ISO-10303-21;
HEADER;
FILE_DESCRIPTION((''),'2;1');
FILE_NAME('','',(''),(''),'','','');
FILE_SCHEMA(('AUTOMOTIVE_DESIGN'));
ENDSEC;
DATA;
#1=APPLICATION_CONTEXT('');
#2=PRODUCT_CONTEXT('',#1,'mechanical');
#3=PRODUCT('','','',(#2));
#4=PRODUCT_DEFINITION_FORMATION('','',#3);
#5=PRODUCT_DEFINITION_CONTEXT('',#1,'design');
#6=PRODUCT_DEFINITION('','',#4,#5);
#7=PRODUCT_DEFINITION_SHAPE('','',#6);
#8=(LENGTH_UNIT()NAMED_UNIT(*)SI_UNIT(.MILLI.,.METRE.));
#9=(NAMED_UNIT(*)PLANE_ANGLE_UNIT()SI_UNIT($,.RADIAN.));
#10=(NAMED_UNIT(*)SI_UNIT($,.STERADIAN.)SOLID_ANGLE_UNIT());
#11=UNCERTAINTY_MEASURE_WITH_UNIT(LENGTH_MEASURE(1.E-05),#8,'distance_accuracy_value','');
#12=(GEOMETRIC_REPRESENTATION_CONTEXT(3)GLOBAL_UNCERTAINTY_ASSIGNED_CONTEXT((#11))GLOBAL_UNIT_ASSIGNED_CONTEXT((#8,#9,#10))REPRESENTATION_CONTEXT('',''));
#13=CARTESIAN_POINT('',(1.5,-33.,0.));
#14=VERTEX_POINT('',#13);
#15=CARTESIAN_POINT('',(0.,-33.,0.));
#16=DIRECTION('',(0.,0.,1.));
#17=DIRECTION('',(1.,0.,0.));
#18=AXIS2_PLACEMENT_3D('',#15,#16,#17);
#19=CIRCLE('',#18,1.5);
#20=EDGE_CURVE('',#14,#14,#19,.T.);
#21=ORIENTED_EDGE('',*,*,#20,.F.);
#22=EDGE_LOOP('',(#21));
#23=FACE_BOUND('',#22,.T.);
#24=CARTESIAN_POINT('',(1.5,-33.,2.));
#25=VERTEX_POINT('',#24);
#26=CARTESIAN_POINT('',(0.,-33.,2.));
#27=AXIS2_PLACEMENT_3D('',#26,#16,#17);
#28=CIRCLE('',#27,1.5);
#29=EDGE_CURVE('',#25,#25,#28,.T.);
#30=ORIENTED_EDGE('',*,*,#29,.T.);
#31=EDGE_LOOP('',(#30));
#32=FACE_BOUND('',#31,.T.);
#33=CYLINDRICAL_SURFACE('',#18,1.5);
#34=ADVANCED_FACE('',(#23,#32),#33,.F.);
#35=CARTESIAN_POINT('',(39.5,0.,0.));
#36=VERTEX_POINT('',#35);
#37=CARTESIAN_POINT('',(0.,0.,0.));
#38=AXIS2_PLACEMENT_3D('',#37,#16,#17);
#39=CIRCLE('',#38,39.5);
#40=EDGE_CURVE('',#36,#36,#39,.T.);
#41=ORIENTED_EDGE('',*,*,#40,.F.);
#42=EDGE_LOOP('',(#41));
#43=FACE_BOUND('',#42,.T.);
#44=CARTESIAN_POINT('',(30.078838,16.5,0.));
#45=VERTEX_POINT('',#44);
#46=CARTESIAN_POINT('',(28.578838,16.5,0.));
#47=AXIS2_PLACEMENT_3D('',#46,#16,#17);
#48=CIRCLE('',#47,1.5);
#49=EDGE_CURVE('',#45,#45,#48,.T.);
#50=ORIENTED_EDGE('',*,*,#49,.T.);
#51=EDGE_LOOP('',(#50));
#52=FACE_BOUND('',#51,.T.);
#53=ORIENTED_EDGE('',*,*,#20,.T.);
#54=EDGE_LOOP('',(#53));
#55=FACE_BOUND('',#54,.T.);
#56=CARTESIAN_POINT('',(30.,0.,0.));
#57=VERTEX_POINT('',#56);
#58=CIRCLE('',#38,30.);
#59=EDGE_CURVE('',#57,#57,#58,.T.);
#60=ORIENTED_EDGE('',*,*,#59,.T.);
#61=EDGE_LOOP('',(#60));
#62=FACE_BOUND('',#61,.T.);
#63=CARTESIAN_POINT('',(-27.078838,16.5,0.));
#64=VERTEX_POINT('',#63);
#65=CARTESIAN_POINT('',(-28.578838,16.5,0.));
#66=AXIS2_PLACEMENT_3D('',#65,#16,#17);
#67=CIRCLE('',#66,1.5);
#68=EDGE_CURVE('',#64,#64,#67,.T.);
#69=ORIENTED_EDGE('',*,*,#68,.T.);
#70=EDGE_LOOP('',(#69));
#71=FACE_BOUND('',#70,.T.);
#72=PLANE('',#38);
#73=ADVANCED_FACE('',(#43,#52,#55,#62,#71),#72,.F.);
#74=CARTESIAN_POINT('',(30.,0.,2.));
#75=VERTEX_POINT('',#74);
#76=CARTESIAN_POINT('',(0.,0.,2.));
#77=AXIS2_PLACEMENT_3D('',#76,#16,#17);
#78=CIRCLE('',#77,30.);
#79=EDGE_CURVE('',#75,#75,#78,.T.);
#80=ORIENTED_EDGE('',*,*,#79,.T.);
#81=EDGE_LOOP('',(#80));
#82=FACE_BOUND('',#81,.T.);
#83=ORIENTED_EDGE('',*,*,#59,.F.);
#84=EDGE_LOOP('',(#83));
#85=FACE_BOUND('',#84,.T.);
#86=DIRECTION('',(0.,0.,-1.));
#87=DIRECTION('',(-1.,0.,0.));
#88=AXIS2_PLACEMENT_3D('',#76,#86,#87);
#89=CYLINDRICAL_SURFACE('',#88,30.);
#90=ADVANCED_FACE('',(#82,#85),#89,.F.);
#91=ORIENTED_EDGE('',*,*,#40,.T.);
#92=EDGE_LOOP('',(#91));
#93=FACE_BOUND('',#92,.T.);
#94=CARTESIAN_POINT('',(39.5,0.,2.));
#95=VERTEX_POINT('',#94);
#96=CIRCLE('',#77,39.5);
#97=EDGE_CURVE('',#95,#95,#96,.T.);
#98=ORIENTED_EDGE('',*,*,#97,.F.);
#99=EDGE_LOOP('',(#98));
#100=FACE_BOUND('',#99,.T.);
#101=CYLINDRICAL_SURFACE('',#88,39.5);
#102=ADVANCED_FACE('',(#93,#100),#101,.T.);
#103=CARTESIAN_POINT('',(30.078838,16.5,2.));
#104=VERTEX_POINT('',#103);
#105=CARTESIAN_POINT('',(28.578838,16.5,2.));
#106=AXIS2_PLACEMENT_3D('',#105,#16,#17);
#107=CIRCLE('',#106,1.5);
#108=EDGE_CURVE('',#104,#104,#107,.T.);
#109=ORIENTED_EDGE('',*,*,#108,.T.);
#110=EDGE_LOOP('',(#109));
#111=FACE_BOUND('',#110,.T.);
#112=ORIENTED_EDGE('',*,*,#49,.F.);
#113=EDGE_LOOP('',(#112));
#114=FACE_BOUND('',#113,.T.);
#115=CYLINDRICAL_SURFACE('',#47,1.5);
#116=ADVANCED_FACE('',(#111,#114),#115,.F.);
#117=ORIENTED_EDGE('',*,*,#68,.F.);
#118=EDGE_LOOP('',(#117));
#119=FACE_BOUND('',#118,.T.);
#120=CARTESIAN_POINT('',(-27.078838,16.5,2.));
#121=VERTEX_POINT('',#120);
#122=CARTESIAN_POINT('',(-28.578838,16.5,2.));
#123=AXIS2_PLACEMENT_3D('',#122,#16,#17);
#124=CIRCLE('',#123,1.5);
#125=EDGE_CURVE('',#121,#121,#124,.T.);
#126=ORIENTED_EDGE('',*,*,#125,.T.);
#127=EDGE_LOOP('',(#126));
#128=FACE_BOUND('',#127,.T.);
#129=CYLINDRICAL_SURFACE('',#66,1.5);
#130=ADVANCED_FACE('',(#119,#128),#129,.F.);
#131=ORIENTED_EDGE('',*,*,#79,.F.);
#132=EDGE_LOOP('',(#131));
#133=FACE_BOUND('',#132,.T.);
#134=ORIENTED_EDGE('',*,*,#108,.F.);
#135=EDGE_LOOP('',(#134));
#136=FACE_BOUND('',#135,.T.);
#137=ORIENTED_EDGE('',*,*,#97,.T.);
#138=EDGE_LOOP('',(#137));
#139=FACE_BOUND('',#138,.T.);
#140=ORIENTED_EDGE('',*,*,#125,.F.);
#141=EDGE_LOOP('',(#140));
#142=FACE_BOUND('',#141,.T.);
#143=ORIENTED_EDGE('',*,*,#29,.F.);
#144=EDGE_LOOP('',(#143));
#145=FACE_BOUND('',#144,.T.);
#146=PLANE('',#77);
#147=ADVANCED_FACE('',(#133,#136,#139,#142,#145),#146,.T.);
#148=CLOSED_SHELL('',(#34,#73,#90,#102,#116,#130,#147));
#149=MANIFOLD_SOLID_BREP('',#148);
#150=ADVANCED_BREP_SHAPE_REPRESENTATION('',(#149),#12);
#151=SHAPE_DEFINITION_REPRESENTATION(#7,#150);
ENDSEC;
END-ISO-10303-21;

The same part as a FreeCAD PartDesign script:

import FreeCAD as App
import Part
import Sketcher
from FreeCAD import Vector

doc = App.newDocument("Part")
params = doc.addObject("Spreadsheet::Sheet", "Params")
for row, (alias, value) in enumerate([
    ("sketch1_diameter", "79 mm"),
    ("sketch1_diameter2", "60 mm"),
    ("pad1_length", "2 mm"),
    ("sketch2_diameter", "3 mm"),
    ("pocket1_length", "2 mm"),
], start=1):
    params.set(f"A{row}", alias)
    params.set(f"B{row}", "=" + value)
    params.setAlias(f"B{row}", alias)

body = doc.addObject("PartDesign::Body", "Body")

# Sketch on XY plane
sketch1 = doc.addObject("Sketcher::SketchObject", "Sketch")
body.addObject(sketch1)
sketch1.AttachmentSupport = (doc.XY_Plane, [""])
sketch1.MapMode = "FlatFace"
sketch1.addGeometry(Part.Circle(Vector(0, 0, 0), Vector(0, 0, 1), 40), False)
sketch1.addGeometry(Part.Circle(Vector(0, 0, 0), Vector(0, 0, 1), 30), False)
sketch1.addConstraint(Sketcher.Constraint("Coincident", 0, 3, -1, 1))
sketch1.addConstraint(Sketcher.Constraint("Coincident", 1, 3, -1, 1))
sketch1.addConstraint(Sketcher.Constraint("Diameter", 0, 79.0))
sketch1.addConstraint(Sketcher.Constraint("Diameter", 1, 60.0))
sketch1.setExpression("Constraints[2]", "Params.sketch1_diameter")
sketch1.setExpression("Constraints[3]", "Params.sketch1_diameter2")
pad1 = doc.addObject("PartDesign::Pad", "Pad")
body.addObject(pad1)
pad1.Profile = sketch1
pad1.setExpression("Length", "Params.pad1_length")

# Sketch on XY plane
sketch2 = doc.addObject("Sketcher::SketchObject", "Sketch001")
body.addObject(sketch2)
sketch2.AttachmentSupport = (doc.XY_Plane, [""])
sketch2.MapMode = "FlatFace"
sketch2.AttachmentOffset = App.Placement(Vector(0, 0, 2), App.Rotation())
sketch2.addGeometry(Part.Circle(Vector(0, -33, 0), Vector(0, 0, 1), 1.5), False)
sketch2.addGeometry(Part.Circle(Vector(-28.6, 16.5, 0), Vector(0, 0, 1), 1.5), False)
sketch2.addGeometry(Part.Circle(Vector(28.6, 16.5, 0), Vector(0, 0, 1), 1.5), False)
sketch2.addConstraint(Sketcher.Constraint("Equal", 0, 1))
sketch2.addConstraint(Sketcher.Constraint("Equal", 1, 2))
sketch2.addConstraint(Sketcher.Constraint("Symmetric", 1, 3, 2, 3, -2))
sketch2.addConstraint(Sketcher.Constraint("PointOnObject", 0, 3, -2))
sketch2.addConstraint(Sketcher.Constraint("Diameter", 0, 3.0))
sketch2.addConstraint(Sketcher.Constraint("DistanceY", 0, 3, -1, 1, 33.0))
sketch2.addConstraint(Sketcher.Constraint("DistanceY", -1, 1, 1, 3, 16.5))
sketch2.addConstraint(Sketcher.Constraint("DistanceX", 1, 3, -1, 1, 28.578838))
sketch2.setExpression("Constraints[4]", "Params.sketch2_diameter")
pocket1 = doc.addObject("PartDesign::Pocket", "Pocket")
body.addObject(pocket1)
pocket1.Profile = sketch2
pocket1.setExpression("Length", "Params.pocket1_length")

doc.recompute()
